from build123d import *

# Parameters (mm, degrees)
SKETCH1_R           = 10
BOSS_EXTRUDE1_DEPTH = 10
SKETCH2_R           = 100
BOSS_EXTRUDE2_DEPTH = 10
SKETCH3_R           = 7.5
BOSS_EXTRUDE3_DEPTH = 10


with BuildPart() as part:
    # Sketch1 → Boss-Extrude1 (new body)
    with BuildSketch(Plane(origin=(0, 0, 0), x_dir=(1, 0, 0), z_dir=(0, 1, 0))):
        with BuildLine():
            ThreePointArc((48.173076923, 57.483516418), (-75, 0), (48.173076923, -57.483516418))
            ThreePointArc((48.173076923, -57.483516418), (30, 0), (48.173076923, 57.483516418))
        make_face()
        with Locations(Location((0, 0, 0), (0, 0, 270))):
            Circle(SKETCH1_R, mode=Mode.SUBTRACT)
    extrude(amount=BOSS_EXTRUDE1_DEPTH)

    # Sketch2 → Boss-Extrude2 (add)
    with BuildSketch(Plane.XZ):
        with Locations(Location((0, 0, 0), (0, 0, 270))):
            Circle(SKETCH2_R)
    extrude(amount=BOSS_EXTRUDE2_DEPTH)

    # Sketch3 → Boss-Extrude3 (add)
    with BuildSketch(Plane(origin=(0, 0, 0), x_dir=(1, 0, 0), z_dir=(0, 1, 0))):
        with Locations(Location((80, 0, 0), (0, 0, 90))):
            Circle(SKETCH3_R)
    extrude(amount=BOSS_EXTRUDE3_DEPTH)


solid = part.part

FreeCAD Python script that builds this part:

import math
import FreeCAD as App
import Part
import Sketcher
from FreeCAD import Vector
Q = App.Units.Quantity

doc = App.newDocument("Part")
body = doc.addObject("PartDesign::Body", "Body")

sketch1 = body.newObject("Sketcher::SketchObject", "Sketch")
sketch1.AttachmentSupport = (doc.getObject("XZ_Plane"), [""])
sketch1.MapMode = "FlatFace"
sketch1.addGeometry(Part.ArcOfCircle(Part.Circle(Vector(0, 0, 0), Vector(0, 0, 1), 75), math.radians(50), math.radians(310)), False)
sketch1.addGeometry(Part.ArcOfCircle(Part.Circle(Vector(130, 0, 0), Vector(0, 0, 1), 100), math.radians(145), math.radians(215)), False)
sketch1.addGeometry(Part.Circle(Vector(0, 0, 0), Vector(0, 0, 1), 10), False)
sketch1.addConstraint(Sketcher.Constraint("Coincident", 0, 1, 1, 1))
sketch1.addConstraint(Sketcher.Constraint("Coincident", 1, 2, 0, 2))
sketch1.addConstraint(Sketcher.Constraint("Coincident", 0, 3, -1, 1))
sketch1.addConstraint(Sketcher.Constraint("Coincident", 2, 3, -1, 1))
sketch1.addConstraint(Sketcher.Constraint("PointOnObject", 1, 3, -1))
sketch1.addConstraint(Sketcher.Constraint("Diameter", 2, Q("20 mm")))
sketch1.addConstraint(Sketcher.Constraint("Radius", 0, Q("75 mm")))
sketch1.addConstraint(Sketcher.Constraint("Radius", 1, Q("100 mm")))
sketch1.addConstraint(Sketcher.Constraint("DistanceX", -1, 1, 1, 3, Q("130 mm")))
pad1 = body.newObject("PartDesign::Pad", "Pad")
pad1.Profile = sketch1
pad1.Length = 10
pad1.Reversed = True

sketch2 = body.newObject("Sketcher::SketchObject", "Sketch001")
sketch2.AttachmentSupport = (doc.getObject("XZ_Plane"), [""])
sketch2.MapMode = "FlatFace"
sketch2.addGeometry(Part.Circle(Vector(0, 0, 0), Vector(0, 0, 1), 100), False)
sketch2.addConstraint(Sketcher.Constraint("Coincident", 0, 3, -1, 1))
sketch2.addConstraint(Sketcher.Constraint("Diameter", 0, Q("200 mm")))
pad2 = body.newObject("PartDesign::Pad", "Pad001")
pad2.Profile = sketch2
pad2.Length = 10

sketch3 = body.newObject("Sketcher::SketchObject", "Sketch002")
sketch3.AttachmentSupport = (doc.getObject("XZ_Plane"), [""])
sketch3.MapMode = "FlatFace"
sketch3.addGeometry(Part.Circle(Vector(80, 0, 0), Vector(0, 0, 1), 8), False)
sketch3.addConstraint(Sketcher.Constraint("PointOnObject", 0, 3, -1))
sketch3.addConstraint(Sketcher.Constraint("Diameter", 0, Q("15 mm")))
sketch3.addConstraint(Sketcher.Constraint("DistanceX", -1, 1, 0, 3, Q("80 mm")))
pad3 = body.newObject("PartDesign::Pad", "Pad002")
pad3.Profile = sketch3
pad3.Length = 10
pad3.Reversed = True

doc.recompute()
